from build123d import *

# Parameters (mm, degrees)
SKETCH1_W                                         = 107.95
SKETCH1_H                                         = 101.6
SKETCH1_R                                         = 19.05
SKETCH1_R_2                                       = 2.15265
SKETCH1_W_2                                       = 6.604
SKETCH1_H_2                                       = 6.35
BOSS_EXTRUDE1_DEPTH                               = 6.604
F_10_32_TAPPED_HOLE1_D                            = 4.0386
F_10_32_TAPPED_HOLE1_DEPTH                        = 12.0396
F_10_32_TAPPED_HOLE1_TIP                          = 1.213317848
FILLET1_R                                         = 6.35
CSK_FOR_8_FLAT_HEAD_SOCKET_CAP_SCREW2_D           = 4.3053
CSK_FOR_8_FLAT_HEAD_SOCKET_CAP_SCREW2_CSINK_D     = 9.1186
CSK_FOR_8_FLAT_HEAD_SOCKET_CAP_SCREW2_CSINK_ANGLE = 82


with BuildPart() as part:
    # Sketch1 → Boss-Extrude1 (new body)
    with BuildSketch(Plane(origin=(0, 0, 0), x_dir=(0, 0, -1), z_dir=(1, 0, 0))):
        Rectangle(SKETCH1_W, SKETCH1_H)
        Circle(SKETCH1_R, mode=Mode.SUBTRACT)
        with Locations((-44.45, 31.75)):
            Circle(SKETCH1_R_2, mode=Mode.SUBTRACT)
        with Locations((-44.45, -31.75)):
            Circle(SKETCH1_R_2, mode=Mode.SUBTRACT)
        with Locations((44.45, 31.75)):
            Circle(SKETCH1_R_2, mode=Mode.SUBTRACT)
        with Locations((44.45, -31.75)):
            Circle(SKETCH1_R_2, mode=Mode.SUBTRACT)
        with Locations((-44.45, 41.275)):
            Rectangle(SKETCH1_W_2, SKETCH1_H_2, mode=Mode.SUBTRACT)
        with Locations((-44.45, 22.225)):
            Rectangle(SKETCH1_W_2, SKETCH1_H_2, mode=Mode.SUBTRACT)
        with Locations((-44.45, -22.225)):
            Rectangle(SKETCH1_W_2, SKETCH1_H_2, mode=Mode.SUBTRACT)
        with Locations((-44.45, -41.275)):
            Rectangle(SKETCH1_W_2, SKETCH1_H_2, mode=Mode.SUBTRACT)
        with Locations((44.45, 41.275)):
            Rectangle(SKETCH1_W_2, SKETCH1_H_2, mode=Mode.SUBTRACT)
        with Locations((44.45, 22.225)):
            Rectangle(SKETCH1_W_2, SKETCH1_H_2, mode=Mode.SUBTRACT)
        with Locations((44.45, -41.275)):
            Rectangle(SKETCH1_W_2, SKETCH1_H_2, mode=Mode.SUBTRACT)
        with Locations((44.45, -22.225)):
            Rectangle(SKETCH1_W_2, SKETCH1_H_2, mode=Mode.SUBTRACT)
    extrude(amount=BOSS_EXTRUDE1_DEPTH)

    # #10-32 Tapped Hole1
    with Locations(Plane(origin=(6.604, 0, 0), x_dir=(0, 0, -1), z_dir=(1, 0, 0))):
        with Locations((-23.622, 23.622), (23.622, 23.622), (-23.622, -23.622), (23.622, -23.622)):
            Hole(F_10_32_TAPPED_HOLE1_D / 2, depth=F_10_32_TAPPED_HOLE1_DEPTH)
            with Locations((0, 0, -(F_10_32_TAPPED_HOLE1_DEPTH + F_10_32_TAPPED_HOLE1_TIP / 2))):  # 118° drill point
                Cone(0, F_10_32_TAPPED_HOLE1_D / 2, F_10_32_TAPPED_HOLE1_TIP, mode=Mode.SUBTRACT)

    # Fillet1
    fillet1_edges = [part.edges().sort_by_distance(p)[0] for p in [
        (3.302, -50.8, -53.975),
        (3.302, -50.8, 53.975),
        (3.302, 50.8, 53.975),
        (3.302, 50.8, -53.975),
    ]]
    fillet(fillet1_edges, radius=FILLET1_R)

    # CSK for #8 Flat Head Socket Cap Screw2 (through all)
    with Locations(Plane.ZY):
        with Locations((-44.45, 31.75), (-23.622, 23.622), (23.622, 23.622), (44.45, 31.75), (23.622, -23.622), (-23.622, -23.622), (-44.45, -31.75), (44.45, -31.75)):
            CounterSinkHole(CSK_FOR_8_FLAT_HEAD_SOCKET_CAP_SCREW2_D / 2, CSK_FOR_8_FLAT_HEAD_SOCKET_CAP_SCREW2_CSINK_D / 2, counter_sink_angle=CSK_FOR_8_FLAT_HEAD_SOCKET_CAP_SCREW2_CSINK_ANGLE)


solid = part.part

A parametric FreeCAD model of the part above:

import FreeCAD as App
import Part
import Sketcher
Q = App.Units.Quantity


def edges_at(feature, points):
    """Names of the edges that pass closest to the given points."""
    edges = feature.Shape.Edges
    near = lambda p: min(range(len(edges)), key=lambda i: edges[i].distToShape(Part.Vertex(*p))[0])
    return sorted({f"Edge{near(p) + 1}" for p in points})


def add_polygon(sketch, points):
    """Adds a closed chain of lines whose ends are joined by coincident constraints."""
    first, n = sketch.GeometryCount, len(points)
    for a, b in zip(points, points[1:] + points[:1]):
        sketch.addGeometry(Part.LineSegment(App.Vector(*a, 0), App.Vector(*b, 0)), False)
    for i in range(n):
        sketch.addConstraint(Sketcher.Constraint("Coincident", first + i, 2, first + (i + 1) % n, 1))

doc = App.newDocument("Part")
body = doc.addObject("PartDesign::Body", "Body")

sketch1 = doc.addObject("Sketcher::SketchObject", "Sketch")
body.addObject(sketch1)
sketch1.AttachmentSupport = (doc.YZ_Plane, [""])
sketch1.MapMode = "FlatFace"
add_polygon(sketch1, [(50.8, 53.975), (-50.8, 53.975), (-50.8, -53.975), (50.8, -53.975)])
add_polygon(sketch1, [(-44.45, 41.148), (-44.45, 47.752), (-38.1, 47.752), (-38.1, 41.148)])
sketch1.addGeometry(Part.Circle(App.Vector(-31.75, 44.45, 0), App.Vector(0, 0, 1), 2.15265), False)
add_polygon(sketch1, [(-25.4, 41.148), (-25.4, 47.752), (-19.05, 47.752), (-19.05, 41.148)])
add_polygon(sketch1, [(-44.45, -47.752), (-44.45, -41.148), (-38.1, -41.148), (-38.1, -47.752)])
sketch1.addGeometry(Part.Circle(App.Vector(-31.75, -44.45, 0), App.Vector(0, 0, 1), 2.15265), False)
add_polygon(sketch1, [(-25.4, -47.752), (-25.4, -41.148), (-19.05, -41.148), (-19.05, -47.752)])
add_polygon(sketch1, [(19.05, 41.148), (19.05, 47.752), (25.4, 47.752), (25.4, 41.148)])
sketch1.addGeometry(Part.Circle(App.Vector(31.75, 44.45, 0), App.Vector(0, 0, 1), 2.15265), False)
add_polygon(sketch1, [(38.1, 41.148), (38.1, 47.752), (44.45, 47.752), (44.45, 41.148)])
sketch1.addGeometry(Part.Circle(App.Vector(0, 0, 0), App.Vector(0, 0, 1), 19.05), False)
add_polygon(sketch1, [(19.05, -47.752), (19.05, -41.148), (25.4, -41.148), (25.4, -47.752)])
sketch1.addGeometry(Part.Circle(App.Vector(31.75, -44.45, 0), App.Vector(0, 0, 1), 2.15265), False)
add_polygon(sketch1, [(38.1, -47.752), (38.1, -41.148), (44.45, -41.148), (44.45, -47.752)])
sketch1.addConstraint(Sketcher.Constraint("Horizontal", 0))
sketch1.addConstraint(Sketcher.Constraint("Vertical", 1))
sketch1.addConstraint(Sketcher.Constraint("Horizontal", 2))
sketch1.addConstraint(Sketcher.Constraint("Vertical", 3))
sketch1.addConstraint(Sketcher.Constraint("Vertical", 4))
sketch1.addConstraint(Sketcher.Constraint("Horizontal", 5))
sketch1.addConstraint(Sketcher.Constraint("Vertical", 6))
sketch1.addConstraint(Sketcher.Constraint("Horizontal", 7))
sketch1.addConstraint(Sketcher.Constraint("Vertical", 9))
sketch1.addConstraint(Sketcher.Constraint("Horizontal", 10))
sketch1.addConstraint(Sketcher.Constraint("Vertical", 11))
sketch1.addConstraint(Sketcher.Constraint("Horizontal", 12))
sketch1.addConstraint(Sketcher.Constraint("Vertical", 13))
sketch1.addConstraint(Sketcher.Constraint("Horizontal", 14))
sketch1.addConstraint(Sketcher.Constraint("Vertical", 15))
sketch1.addConstraint(Sketcher.Constraint("Horizontal", 16))
sketch1.addConstraint(Sketcher.Constraint("Vertical", 18))
sketch1.addConstraint(Sketcher.Constraint("Horizontal", 19))
sketch1.addConstraint(Sketcher.Constraint("Vertical", 20))
sketch1.addConstraint(Sketcher.Constraint("Horizontal", 21))
sketch1.addConstraint(Sketcher.Constraint("Vertical", 22))
sketch1.addConstraint(Sketcher.Constraint("Horizontal", 23))
sketch1.addConstraint(Sketcher.Constraint("Vertical", 24))
sketch1.addConstraint(Sketcher.Constraint("Horizontal", 25))
sketch1.addConstraint(Sketcher.Constraint("Vertical", 27))
sketch1.addConstraint(Sketcher.Constraint("Horizontal", 28))
sketch1.addConstraint(Sketcher.Constraint("Vertical", 29))
sketch1.addConstraint(Sketcher.Constraint("Horizontal", 30))
sketch1.addConstraint(Sketcher.Constraint("Vertical", 32))
sketch1.addConstraint(Sketcher.Constraint("Horizontal", 33))
sketch1.addConstraint(Sketcher.Constraint("Vertical", 34))
sketch1.addConstraint(Sketcher.Constraint("Horizontal", 35))
sketch1.addConstraint(Sketcher.Constraint("Vertical", 37))
sketch1.addConstraint(Sketcher.Constraint("Horizontal", 38))
sketch1.addConstraint(Sketcher.Constraint("Vertical", 39))
sketch1.addConstraint(Sketcher.Constraint("Horizontal", 40))
sketch1.addConstraint(Sketcher.Constraint("Coincident", 31, 3, -1, 1))
sketch1.addConstraint(Sketcher.Constraint("Equal", 8, 17))
sketch1.addConstraint(Sketcher.Constraint("Equal", 17, 26))
sketch1.addConstraint(Sketcher.Constraint("Equal", 26, 36))
sketch1.addConstraint(Sketcher.Constraint("Symmetric", 17, 3, 26, 3, -1, 1))
sketch1.addConstraint(Sketcher.Constraint("Symmetric", 8, 3, 36, 3, -1, 1))
sketch1.addConstraint(Sketcher.Constraint("Symmetric", 0, 2, 2, 2, -1, 1))
sketch1.addConstraint(Sketcher.Constraint("Symmetric", 20, 2, 22, 2, -1, 1))
sketch1.addConstraint(Sketcher.Constraint("Symmetric", 18, 2, 24, 2, -1, 1))
sketch1.addConstraint(Sketcher.Constraint("Symmetric", 15, 2, 27, 2, -1, 1))
sketch1.addConstraint(Sketcher.Constraint("Symmetric", 13, 2, 29, 2, -1, 1))
sketch1.addConstraint(Sketcher.Constraint("Symmetric", 11, 2, 32, 2, -1, 1))
sketch1.addConstraint(Sketcher.Constraint("Symmetric", 9, 2, 34, 2, -1, 1))
sketch1.addConstraint(Sketcher.Constraint("Symmetric", 6, 2, 37, 2, -1, 1))
sketch1.addConstraint(Sketcher.Constraint("Symmetric", 4, 2, 39, 2, -1, 1))
sketch1.addConstraint(Sketcher.Constraint("Symmetric", 8, 3, 26, 3, -2))
sketch1.addConstraint(Sketcher.Constraint("Symmetric", 10, 2, 22, 2, -2))
sketch1.addConstraint(Sketcher.Constraint("Symmetric", 12, 2, 24, 2, -2))
sketch1.addConstraint(Sketcher.Constraint("Symmetric", 5, 2, 27, 2, -2))
sketch1.addConstraint(Sketcher.Constraint("Symmetric", 7, 2, 29, 2, -2))
sketch1.addConstraint(Sketcher.Constraint("Horizontal", 5, 2, 9, 2))
sketch1.addConstraint(Sketcher.Constraint("Horizontal", 7, 2, 11, 2))
sketch1.addConstraint(Sketcher.Constraint("Equal", 7, 10))
sketch1.addConstraint(Sketcher.Constraint("Diameter", 31, Q("1.5 in")))
sketch1.addConstraint(Sketcher.Constraint("DistanceX", 0, 2, 0, 1, Q("4 in")))
sketch1.addConstraint(Sketcher.Constraint("DistanceX", 9, 2, -1, 1, Q("1 in")))
sketch1.addConstraint(Sketcher.Constraint("DistanceX", 4, 2, 26, 3, Q("3 in")))
sketch1.addConstraint(Sketcher.Constraint("DistanceX", 4, 2, 10, 2, Q("1 in")))
sketch1.addConstraint(Sketcher.Constraint("Diameter", 8, Q("0.1695 in")))
sketch1.addConstraint(Sketcher.Constraint("DistanceX", 5, 1, 5, 2, Q("0.25 in")))
sketch1.addConstraint(Sketcher.Constraint("DistanceY", 1, 2, 1, 1, Q("4.25 in")))
sketch1.addConstraint(Sketcher.Constraint("DistanceY", 4, 1, 4, 2, Q("0.26 in")))
sketch1.addConstraint(Sketcher.Constraint("DistanceY", 17, 3, 8, 3, Q("3.5 in")))
sketch1.addConstraint(Sketcher.Constraint("DistanceY", -1, 1, 4, 2, Q("1.88 in")))
pad1 = doc.addObject("PartDesign::Pad", "Pad")
body.addObject(pad1)
pad1.Profile = sketch1
pad1.Length = Q("0.26 in")

sketch2 = doc.addObject("Sketcher::SketchObject", "Sketch001")
body.addObject(sketch2)
sketch2.AttachmentSupport = (doc.YZ_Plane, [""])
sketch2.MapMode = "FlatFace"
sketch2.AttachmentOffset = App.Placement(App.Vector(0, 0, 0.26 * 25.4), App.Rotation())
sketch2.addGeometry(Part.Circle(App.Vector(23.622, 23.622, 0), App.Vector(0, 0, 1), 2.0193), False)
sketch2.addGeometry(Part.Circle(App.Vector(23.622, -23.622, 0), App.Vector(0, 0, 1), 2.0193), False)
sketch2.addGeometry(Part.Circle(App.Vector(-23.622, 23.622, 0), App.Vector(0, 0, 1), 2.0193), False)
sketch2.addGeometry(Part.Circle(App.Vector(-23.622, -23.622, 0), App.Vector(0, 0, 1), 2.0193), False)
sketch2.addConstraint(Sketcher.Constraint("Equal", 0, 1))
sketch2.addConstraint(Sketcher.Constraint("Equal", 1, 2))
sketch2.addConstraint(Sketcher.Constraint("Equal", 2, 3))
sketch2.addConstraint(Sketcher.Constraint("Symmetric", 1, 3, 2, 3, -1, 1))
sketch2.addConstraint(Sketcher.Constraint("Symmetric", 0, 3, 3, 3, -1, 1))
sketch2.addConstraint(Sketcher.Constraint("Symmetric", 0, 3, 2, 3, -2))
sketch2.addConstraint(Sketcher.Constraint("Diameter", 0, Q("0.159 in")))
sketch2.addConstraint(Sketcher.Constraint("DistanceX", -1, 1, 0, 3, Q("0.93 in")))
sketch2.addConstraint(Sketcher.Constraint("DistanceY", -1, 1, 0, 3, Q("0.93 in")))
doc.recompute()
hole = doc.addObject("PartDesign::Hole", "Hole")
body.addObject(hole)
hole.Profile = sketch2
hole.ThreadType = "None"
hole.Diameter = Q("0.159 in")
hole.DepthType = "Dimension"
hole.Depth = Q("0.474 in")
hole.DrillPoint = "Angled"
hole.DrillPointAngle = 118
doc.recompute()

fillet = doc.addObject("PartDesign::Fillet", "Fillet")
body.addObject(fillet)
fillet.Base = (hole, edges_at(hole, [
    (3.302, -50.8, -53.975),
    (3.302, -50.8, 53.975),
    (3.302, 50.8, 53.975),
    (3.302, 50.8, -53.975),
]))
fillet.Radius = Q("0.25 in")

sketch3 = doc.addObject("Sketcher::SketchObject", "Sketch002")
body.addObject(sketch3)
sketch3.AttachmentSupport = (doc.YZ_Plane, [""])
sketch3.MapMode = "FlatFace"
sketch3.addGeometry(Part.Circle(App.Vector(31.75, -44.45, 0), App.Vector(0, 0, 1), 2.15265), False)
sketch3.addGeometry(Part.Circle(App.Vector(23.622, -23.622, 0), App.Vector(0, 0, 1), 2.15265), False)
sketch3.addGeometry(Part.Circle(App.Vector(23.622, 23.622, 0), App.Vector(0, 0, 1), 2.15265), False)
sketch3.addGeometry(Part.Circle(App.Vector(31.75, 44.45, 0), App.Vector(0, 0, 1), 2.15265), False)
sketch3.addGeometry(Part.Circle(App.Vector(-23.622, 23.622, 0), App.Vector(0, 0, 1), 2.15265), False)
sketch3.addGeometry(Part.Circle(App.Vector(-23.622, -23.622, 0), App.Vector(0, 0, 1), 2.15265), False)
sketch3.addGeometry(Part.Circle(App.Vector(-31.75, -44.45, 0), App.Vector(0, 0, 1), 2.15265), False)
sketch3.addGeometry(Part.Circle(App.Vector(-31.75, 44.45, 0), App.Vector(0, 0, 1), 2.15265), False)
sketch3.addConstraint(Sketcher.Constraint("Equal", 0, 1))
sketch3.addConstraint(Sketcher.Constraint("Equal", 1, 2))
sketch3.addConstraint(Sketcher.Constraint("Equal", 2, 3))
sketch3.addConstraint(Sketcher.Constraint("Equal", 3, 4))
sketch3.addConstraint(Sketcher.Constraint("Equal", 4, 5))
sketch3.addConstraint(Sketcher.Constraint("Equal", 5, 6))
sketch3.addConstraint(Sketcher.Constraint("Equal", 6, 7))
sketch3.addConstraint(Sketcher.Constraint("Symmetric", 1, 3, 4, 3, -1, 1))
sketch3.addConstraint(Sketcher.Constraint("Symmetric", 2, 3, 5, 3, -1, 1))
sketch3.addConstraint(Sketcher.Constraint("Symmetric", 3, 3, 6, 3, -1, 1))
sketch3.addConstraint(Sketcher.Constraint("Symmetric", 0, 3, 7, 3, -1, 1))
sketch3.addConstraint(Sketcher.Constraint("Symmetric", 2, 3, 4, 3, -2))
sketch3.addConstraint(Sketcher.Constraint("Symmetric", 0, 3, 6, 3, -2))
sketch3.addConstraint(Sketcher.Constraint("Diameter", 0, Q("0.1695 in")))
sketch3.addConstraint(Sketcher.Constraint("DistanceY", 0, 3, 3, 3, Q("3.5 in")))
sketch3.addConstraint(Sketcher.Constraint("DistanceX", 6, 3, 0, 3, Q("2.5 in")))
sketch3.addConstraint(Sketcher.Constraint("DistanceX", -1, 1, 1, 3, Q("0.93 in")))
sketch3.addConstraint(Sketcher.Constraint("DistanceY", 1, 3, -1, 1, Q("0.93 in")))
doc.recompute()
hole2 = doc.addObject("PartDesign::Hole", "Hole001")
body.addObject(hole2)
hole2.Profile = sketch3
hole2.ThreadType = "None"
hole2.Diameter = Q("0.1695 in")
hole2.DepthType = "ThroughAll"
hole2.HoleCutType = "Countersink"
hole2.HoleCutDiameter = Q("0.359 in")
hole2.HoleCutCountersinkAngle = 82
hole2.Reversed = True

doc.recompute()
